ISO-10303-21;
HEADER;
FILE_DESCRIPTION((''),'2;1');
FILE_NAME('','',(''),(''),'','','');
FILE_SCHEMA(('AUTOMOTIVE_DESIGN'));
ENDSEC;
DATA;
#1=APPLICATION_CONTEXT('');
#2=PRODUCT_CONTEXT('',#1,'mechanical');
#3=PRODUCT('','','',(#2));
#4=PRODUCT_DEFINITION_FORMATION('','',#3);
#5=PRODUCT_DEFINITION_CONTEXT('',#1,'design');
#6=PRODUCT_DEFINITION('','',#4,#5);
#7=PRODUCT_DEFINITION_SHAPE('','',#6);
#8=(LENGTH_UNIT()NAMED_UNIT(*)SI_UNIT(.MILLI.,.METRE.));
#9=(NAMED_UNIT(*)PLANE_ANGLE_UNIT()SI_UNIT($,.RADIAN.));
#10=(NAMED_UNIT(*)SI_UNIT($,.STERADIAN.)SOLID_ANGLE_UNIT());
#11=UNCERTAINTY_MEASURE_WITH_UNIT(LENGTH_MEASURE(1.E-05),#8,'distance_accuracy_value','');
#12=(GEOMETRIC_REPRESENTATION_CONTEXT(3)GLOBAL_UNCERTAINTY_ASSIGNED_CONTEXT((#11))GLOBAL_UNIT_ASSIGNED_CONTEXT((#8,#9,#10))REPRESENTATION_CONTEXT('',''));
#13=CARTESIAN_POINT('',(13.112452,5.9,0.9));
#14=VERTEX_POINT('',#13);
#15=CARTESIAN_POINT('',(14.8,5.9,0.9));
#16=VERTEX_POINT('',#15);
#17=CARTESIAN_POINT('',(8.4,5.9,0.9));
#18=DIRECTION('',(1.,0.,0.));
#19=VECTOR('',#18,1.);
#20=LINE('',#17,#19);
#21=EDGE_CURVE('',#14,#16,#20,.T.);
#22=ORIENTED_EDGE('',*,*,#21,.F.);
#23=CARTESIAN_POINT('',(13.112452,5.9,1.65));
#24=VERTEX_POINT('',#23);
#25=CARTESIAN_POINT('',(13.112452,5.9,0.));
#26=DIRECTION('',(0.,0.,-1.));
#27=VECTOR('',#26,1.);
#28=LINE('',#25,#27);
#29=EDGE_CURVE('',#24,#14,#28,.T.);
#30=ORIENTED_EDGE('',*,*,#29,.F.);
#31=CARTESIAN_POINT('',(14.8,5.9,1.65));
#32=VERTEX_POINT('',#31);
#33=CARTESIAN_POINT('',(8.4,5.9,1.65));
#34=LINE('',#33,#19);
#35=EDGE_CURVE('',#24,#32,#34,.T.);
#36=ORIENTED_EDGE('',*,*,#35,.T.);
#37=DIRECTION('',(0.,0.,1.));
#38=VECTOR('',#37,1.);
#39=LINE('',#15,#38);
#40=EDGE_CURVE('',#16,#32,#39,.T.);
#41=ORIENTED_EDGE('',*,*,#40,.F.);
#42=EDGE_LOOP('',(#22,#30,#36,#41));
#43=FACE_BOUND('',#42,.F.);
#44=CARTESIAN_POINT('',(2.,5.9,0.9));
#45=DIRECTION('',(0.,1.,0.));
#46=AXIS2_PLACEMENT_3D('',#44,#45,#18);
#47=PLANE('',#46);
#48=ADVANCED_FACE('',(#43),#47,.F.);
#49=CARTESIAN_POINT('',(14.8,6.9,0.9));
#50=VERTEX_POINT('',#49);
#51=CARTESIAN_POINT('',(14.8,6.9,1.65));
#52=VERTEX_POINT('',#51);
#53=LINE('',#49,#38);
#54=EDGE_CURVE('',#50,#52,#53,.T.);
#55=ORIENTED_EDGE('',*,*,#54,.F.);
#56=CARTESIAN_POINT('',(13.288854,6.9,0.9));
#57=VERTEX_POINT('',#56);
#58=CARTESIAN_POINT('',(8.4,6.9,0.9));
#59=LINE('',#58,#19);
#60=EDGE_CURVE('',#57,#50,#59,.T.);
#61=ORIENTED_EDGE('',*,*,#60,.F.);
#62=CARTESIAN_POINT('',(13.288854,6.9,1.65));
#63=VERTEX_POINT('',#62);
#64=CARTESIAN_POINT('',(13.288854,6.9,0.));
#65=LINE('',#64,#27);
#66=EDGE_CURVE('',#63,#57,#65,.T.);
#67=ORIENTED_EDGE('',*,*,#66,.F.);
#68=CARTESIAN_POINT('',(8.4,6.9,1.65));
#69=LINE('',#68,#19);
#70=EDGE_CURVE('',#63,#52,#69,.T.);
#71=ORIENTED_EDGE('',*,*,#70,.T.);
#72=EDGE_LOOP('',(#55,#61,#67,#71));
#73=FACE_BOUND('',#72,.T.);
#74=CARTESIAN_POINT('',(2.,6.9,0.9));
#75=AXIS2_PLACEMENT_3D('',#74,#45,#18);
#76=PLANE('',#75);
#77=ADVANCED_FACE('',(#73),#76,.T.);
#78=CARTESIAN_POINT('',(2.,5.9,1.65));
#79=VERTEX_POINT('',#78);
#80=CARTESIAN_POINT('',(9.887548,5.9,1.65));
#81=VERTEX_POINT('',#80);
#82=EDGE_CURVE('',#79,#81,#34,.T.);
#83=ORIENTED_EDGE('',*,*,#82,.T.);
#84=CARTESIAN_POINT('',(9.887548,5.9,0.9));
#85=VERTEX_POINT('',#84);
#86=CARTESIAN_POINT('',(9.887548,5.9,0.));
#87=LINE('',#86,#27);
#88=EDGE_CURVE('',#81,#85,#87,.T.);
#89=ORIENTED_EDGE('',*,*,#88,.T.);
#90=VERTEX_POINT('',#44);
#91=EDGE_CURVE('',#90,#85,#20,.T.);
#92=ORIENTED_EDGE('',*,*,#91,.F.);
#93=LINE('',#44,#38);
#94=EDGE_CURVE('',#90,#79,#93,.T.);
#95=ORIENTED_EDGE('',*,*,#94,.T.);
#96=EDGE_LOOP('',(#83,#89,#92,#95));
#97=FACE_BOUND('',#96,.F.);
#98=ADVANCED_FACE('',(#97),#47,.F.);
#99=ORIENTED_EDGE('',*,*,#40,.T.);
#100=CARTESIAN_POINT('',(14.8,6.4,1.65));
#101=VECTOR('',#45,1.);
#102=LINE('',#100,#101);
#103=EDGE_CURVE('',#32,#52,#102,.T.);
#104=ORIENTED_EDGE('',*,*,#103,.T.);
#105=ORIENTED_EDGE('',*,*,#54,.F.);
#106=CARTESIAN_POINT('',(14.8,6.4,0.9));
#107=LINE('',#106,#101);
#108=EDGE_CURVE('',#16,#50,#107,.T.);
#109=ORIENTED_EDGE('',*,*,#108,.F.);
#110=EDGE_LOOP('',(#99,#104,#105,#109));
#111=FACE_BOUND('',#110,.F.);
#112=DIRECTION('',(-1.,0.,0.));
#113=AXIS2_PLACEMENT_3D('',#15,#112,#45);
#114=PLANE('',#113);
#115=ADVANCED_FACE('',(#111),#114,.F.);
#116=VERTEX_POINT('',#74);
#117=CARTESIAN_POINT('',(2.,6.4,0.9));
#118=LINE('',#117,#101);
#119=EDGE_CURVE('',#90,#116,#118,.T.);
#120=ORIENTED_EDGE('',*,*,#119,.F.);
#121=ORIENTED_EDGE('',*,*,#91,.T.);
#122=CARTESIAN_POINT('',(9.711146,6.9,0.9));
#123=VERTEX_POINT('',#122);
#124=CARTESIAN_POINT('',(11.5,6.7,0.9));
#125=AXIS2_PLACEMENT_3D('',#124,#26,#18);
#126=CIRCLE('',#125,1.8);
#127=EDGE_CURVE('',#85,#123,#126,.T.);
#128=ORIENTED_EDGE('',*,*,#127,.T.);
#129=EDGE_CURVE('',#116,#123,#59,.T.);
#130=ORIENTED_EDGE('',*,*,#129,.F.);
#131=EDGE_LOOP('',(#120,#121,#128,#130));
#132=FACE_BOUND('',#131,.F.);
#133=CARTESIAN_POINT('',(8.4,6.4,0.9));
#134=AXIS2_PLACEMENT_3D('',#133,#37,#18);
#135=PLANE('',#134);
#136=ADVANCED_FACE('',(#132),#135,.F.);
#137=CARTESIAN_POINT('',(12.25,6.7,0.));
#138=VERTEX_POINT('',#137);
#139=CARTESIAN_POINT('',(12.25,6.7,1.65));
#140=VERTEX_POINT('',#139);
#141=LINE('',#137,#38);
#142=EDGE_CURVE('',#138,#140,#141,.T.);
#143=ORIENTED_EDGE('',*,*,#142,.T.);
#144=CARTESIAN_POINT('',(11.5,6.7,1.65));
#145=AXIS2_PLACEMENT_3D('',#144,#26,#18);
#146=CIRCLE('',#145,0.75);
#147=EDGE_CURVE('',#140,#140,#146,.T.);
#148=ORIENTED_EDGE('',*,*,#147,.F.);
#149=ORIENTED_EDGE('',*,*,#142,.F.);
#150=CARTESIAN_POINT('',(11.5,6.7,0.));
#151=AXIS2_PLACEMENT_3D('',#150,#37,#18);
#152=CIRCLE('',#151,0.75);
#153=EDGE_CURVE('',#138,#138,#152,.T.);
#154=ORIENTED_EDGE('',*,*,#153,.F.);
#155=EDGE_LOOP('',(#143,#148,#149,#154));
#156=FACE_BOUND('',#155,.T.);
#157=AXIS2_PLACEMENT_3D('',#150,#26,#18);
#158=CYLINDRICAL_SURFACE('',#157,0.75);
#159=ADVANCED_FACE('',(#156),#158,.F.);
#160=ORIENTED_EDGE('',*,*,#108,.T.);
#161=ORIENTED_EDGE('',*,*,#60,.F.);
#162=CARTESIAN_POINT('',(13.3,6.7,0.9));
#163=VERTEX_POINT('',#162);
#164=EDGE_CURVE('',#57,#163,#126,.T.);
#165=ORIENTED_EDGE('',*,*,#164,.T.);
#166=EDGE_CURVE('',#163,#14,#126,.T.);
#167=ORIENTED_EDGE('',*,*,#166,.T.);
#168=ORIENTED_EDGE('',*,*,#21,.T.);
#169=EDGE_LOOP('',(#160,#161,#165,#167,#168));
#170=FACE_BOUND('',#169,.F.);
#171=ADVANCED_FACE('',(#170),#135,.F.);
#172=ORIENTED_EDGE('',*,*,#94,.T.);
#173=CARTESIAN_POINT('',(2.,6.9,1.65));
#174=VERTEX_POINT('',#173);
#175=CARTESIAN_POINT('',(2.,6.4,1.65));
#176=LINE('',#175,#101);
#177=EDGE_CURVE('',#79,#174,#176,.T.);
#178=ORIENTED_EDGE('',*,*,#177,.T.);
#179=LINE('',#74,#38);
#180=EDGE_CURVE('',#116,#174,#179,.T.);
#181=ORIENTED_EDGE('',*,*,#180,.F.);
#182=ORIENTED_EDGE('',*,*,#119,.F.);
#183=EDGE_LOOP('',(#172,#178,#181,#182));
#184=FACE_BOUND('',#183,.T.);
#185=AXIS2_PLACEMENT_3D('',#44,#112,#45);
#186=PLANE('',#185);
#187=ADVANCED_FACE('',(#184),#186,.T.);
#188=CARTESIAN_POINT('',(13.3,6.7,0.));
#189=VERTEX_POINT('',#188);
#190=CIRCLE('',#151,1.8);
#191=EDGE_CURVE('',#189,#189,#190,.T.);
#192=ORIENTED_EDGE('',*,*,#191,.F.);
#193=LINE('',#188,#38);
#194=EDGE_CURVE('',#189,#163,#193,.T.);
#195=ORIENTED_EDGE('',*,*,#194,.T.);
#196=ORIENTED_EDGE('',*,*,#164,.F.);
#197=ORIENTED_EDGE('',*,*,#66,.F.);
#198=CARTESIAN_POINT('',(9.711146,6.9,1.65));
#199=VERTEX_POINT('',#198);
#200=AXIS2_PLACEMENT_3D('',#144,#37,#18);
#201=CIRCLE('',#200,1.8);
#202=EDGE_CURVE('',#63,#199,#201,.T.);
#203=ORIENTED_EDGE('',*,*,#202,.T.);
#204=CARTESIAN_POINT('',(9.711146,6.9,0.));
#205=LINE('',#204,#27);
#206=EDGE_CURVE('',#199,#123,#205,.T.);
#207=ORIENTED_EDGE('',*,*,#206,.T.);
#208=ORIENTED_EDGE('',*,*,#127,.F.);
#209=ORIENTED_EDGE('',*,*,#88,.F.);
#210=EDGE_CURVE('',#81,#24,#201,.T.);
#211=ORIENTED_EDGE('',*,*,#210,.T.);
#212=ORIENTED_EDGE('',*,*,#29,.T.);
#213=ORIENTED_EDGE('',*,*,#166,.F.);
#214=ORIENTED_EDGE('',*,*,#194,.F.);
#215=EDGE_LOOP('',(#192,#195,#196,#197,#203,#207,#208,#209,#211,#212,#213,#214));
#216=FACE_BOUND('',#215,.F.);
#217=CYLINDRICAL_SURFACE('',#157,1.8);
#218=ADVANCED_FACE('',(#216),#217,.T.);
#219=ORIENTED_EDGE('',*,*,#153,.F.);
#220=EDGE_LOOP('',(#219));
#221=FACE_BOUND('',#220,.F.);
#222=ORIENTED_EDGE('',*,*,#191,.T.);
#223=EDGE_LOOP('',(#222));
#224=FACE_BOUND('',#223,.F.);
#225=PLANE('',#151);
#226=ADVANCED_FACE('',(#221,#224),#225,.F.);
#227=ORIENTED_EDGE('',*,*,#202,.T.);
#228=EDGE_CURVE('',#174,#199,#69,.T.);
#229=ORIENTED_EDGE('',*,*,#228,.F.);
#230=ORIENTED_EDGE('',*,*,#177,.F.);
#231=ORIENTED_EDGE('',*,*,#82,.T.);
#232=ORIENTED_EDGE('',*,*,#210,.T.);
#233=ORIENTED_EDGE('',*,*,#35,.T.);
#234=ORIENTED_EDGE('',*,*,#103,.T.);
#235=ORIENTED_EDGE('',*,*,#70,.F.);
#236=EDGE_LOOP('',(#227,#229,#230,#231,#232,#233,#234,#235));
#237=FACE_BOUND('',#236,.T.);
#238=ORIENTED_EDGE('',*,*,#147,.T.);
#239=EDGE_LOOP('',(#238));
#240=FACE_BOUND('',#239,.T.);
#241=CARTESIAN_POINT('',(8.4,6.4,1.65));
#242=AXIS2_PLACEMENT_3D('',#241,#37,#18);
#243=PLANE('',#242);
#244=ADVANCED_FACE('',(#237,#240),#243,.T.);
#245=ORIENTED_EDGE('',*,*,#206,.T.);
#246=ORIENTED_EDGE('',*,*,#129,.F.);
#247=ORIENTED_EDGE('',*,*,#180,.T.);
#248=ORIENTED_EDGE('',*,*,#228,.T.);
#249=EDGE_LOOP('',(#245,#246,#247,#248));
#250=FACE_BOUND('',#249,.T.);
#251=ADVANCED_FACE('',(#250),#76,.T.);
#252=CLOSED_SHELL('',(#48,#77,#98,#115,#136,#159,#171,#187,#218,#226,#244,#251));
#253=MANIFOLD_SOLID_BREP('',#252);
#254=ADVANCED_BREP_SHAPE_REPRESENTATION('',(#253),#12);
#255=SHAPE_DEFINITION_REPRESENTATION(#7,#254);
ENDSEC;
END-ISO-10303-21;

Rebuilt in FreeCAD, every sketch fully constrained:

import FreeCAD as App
import Part
import Sketcher
from FreeCAD import Vector
Q = App.Units.Quantity


def add_polygon(sketch, points):
    """Adds a closed chain of lines whose ends are joined by coincident constraints."""
    first, n = sketch.GeometryCount, len(points)
    for a, b in zip(points, points[1:] + points[:1]):
        sketch.addGeometry(Part.LineSegment(App.Vector(*a, 0), App.Vector(*b, 0)), False)
    for i in range(n):
        sketch.addConstraint(Sketcher.Constraint("Coincident", first + i, 2, first + (i + 1) % n, 1))

doc = App.newDocument("Part")
body = doc.addObject("PartDesign::Body", "Body")

sketch1 = body.newObject("Sketcher::SketchObject", "Sketch")
sketch1.AttachmentSupport = (doc.getObject("XY_Plane"), [""])
sketch1.MapMode = "FlatFace"
sketch1.addGeometry(Part.Circle(Vector(11.5, 6.7, 0), Vector(0, 0, 1), 0.8), False)
sketch1.addConstraint(Sketcher.Constraint("Diameter", 0, Q("1.5 mm")))
sketch1.addConstraint(Sketcher.Constraint("DistanceX", -1, 1, 0, 3, Q("11.5 mm")))
sketch1.addConstraint(Sketcher.Constraint("DistanceY", -1, 1, 0, 3, Q("6.7 mm")))
pad1 = body.newObject("PartDesign::Pad", "Pad")
pad1.Profile = sketch1
pad1.Length = 10
body2 = doc.addObject("PartDesign::Body", "Body001")

sketch2 = body2.newObject("Sketcher::SketchObject", "Sketch001")
sketch2.AttachmentSupport = (doc.getObject("XY_Plane001"), [""])
sketch2.MapMode = "FlatFace"
sketch2.AttachmentOffset = App.Placement(Vector(0, 0, 0.9), App.Rotation())
add_polygon(sketch2, [(2, 6.9), (2, 5.9), (14.8, 5.9), (14.8, 6.9)])
sketch2.addConstraint(Sketcher.Constraint("Vertical", 0))
sketch2.addConstraint(Sketcher.Constraint("Horizontal", 1))
sketch2.addConstraint(Sketcher.Constraint("Vertical", 2))
sketch2.addConstraint(Sketcher.Constraint("Horizontal", 3))
sketch2.addConstraint(Sketcher.Constraint("DistanceY", 0, 2, 0, 1, Q("1 mm")))
sketch2.addConstraint(Sketcher.Constraint("DistanceX", 1, 1, 1, 2, Q("12.8 mm")))
sketch2.addConstraint(Sketcher.Constraint("DistanceX", -1, 1, 0, 2, Q("2 mm")))
sketch2.addConstraint(Sketcher.Constraint("DistanceY", -1, 1, 0, 2, Q("5.9 mm")))
pad2 = body2.newObject("PartDesign::Pad", "Pad001")
pad2.Profile = sketch2
pad2.Length = 0.75
body3 = doc.addObject("PartDesign::Body", "Body002")

sketch3 = body3.newObject("Sketcher::SketchObject", "Sketch002")
sketch3.AttachmentSupport = (doc.getObject("XY_Plane002"), [""])
sketch3.MapMode = "FlatFace"
sketch3.addGeometry(Part.Circle(Vector(11.5, 6.7, 0), Vector(0, 0, 1), 1.8), False)
sketch3.addConstraint(Sketcher.Constraint("Diameter", 0, Q("3.6 mm")))
sketch3.addConstraint(Sketcher.Constraint("DistanceX", -1, 1, 0, 3, Q("11.5 mm")))
sketch3.addConstraint(Sketcher.Constraint("DistanceY", -1, 1, 0, 3, Q("6.7 mm")))
pad3 = body3.newObject("PartDesign::Pad", "Pad002")
pad3.Profile = sketch3
pad3.Length = 1.65
doc.recompute()

boolean = body3.newObject("PartDesign::Boolean", "Boolean")
boolean.Type = "Fuse"
boolean.addObjects([body2])
doc.recompute()

boolean2 = body3.newObject("PartDesign::Boolean", "Boolean001")
boolean2.Type = "Cut"
boolean2.addObjects([body])

doc.recompute()
